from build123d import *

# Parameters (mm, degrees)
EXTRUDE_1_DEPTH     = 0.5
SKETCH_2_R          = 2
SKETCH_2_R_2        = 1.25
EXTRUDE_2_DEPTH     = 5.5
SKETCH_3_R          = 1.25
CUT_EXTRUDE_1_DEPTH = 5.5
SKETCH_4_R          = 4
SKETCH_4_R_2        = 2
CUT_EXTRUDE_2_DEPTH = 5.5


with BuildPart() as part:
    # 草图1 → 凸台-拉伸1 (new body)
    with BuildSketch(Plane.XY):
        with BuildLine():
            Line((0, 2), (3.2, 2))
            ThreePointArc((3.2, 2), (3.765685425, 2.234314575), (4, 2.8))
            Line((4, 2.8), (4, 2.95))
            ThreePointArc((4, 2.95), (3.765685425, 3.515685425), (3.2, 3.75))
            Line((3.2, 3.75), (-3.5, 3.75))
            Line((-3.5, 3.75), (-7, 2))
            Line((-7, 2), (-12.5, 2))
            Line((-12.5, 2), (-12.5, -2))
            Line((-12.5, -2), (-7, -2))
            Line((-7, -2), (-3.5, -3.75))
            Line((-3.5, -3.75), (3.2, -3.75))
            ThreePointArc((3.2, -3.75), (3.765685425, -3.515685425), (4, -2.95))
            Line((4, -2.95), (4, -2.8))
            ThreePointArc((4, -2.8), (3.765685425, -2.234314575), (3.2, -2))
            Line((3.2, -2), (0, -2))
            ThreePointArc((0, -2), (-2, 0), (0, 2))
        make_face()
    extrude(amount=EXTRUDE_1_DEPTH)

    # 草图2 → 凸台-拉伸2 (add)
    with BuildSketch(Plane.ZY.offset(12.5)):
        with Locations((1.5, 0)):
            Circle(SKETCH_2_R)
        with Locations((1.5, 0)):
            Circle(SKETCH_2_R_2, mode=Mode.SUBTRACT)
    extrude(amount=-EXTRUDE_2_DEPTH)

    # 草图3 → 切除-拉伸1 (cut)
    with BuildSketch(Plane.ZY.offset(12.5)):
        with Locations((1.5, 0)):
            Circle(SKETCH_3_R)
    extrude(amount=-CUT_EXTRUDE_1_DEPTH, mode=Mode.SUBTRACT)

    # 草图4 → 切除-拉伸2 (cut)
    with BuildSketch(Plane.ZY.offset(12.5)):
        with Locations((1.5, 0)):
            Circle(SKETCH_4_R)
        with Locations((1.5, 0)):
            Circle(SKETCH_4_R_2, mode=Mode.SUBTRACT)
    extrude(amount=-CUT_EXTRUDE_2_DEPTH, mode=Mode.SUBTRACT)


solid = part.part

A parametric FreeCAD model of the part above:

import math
import FreeCAD as App
import Part
import Sketcher
Q = App.Units.Quantity

doc = App.newDocument("Part")
body = doc.addObject("PartDesign::Body", "Body")

# Sketch on XY plane
sketch1 = body.newObject("Sketcher::SketchObject", "Sketch")
sketch1.AttachmentSupport = (doc.getObject("XY_Plane"), [""])
sketch1.MapMode = "FlatFace"
sketch1.addGeometry(Part.LineSegment(App.Vector(0, 2, 0), App.Vector(3.2, 2, 0)), False)
sketch1.addGeometry(Part.ArcOfCircle(Part.Circle(App.Vector(3.2, 2.8, 0), App.Vector(0, 0, 1), 0.8), math.radians(-90), math.radians(0)), False)
sketch1.addGeometry(Part.LineSegment(App.Vector(4, 2.8, 0), App.Vector(4, 2.95, 0)), False)
sketch1.addGeometry(Part.ArcOfCircle(Part.Circle(App.Vector(3.2, 2.95, 0), App.Vector(0, 0, 1), 0.8), math.radians(0), math.radians(90)), False)
sketch1.addGeometry(Part.LineSegment(App.Vector(3.2, 3.75, 0), App.Vector(-3.5, 3.75, 0)), False)
sketch1.addGeometry(Part.LineSegment(App.Vector(-3.5, 3.75, 0), App.Vector(-7, 2, 0)), False)
sketch1.addGeometry(Part.LineSegment(App.Vector(-7, 2, 0), App.Vector(-12.5, 2, 0)), False)
sketch1.addGeometry(Part.LineSegment(App.Vector(-12.5, 2, 0), App.Vector(-12.5, -2, 0)), False)
sketch1.addGeometry(Part.LineSegment(App.Vector(-12.5, -2, 0), App.Vector(-7, -2, 0)), False)
sketch1.addGeometry(Part.LineSegment(App.Vector(-7, -2, 0), App.Vector(-3.5, -3.75, 0)), False)
sketch1.addGeometry(Part.LineSegment(App.Vector(-3.5, -3.75, 0), App.Vector(3.2, -3.75, 0)), False)
sketch1.addGeometry(Part.ArcOfCircle(Part.Circle(App.Vector(3.2, -2.95, 0), App.Vector(0, 0, 1), 0.8), math.radians(-90), math.radians(0)), False)
sketch1.addGeometry(Part.LineSegment(App.Vector(4, -2.95, 0), App.Vector(4, -2.8, 0)), False)
sketch1.addGeometry(Part.ArcOfCircle(Part.Circle(App.Vector(3.2, -2.8, 0), App.Vector(0, 0, 1), 0.8), math.radians(0), math.radians(90)), False)
sketch1.addGeometry(Part.LineSegment(App.Vector(3.2, -2, 0), App.Vector(0, -2, 0)), False)
sketch1.addGeometry(Part.ArcOfCircle(Part.Circle(App.Vector(0, 0, 0), App.Vector(0, 0, 1), 2), math.radians(90), math.radians(270)), False)
sketch1.addConstraint(Sketcher.Constraint("Tangent", 0, 2, 1, 1))
sketch1.addConstraint(Sketcher.Constraint("Tangent", 1, 2, 2, 1))
sketch1.addConstraint(Sketcher.Constraint("Tangent", 2, 2, 3, 1))
sketch1.addConstraint(Sketcher.Constraint("Tangent", 3, 2, 4, 1))
sketch1.addConstraint(Sketcher.Constraint("Coincident", 4, 2, 5, 1))
sketch1.addConstraint(Sketcher.Constraint("Coincident", 5, 2, 6, 1))
sketch1.addConstraint(Sketcher.Constraint("Coincident", 6, 2, 7, 1))
sketch1.addConstraint(Sketcher.Constraint("Coincident", 7, 2, 8, 1))
sketch1.addConstraint(Sketcher.Constraint("Coincident", 8, 2, 9, 1))
sketch1.addConstraint(Sketcher.Constraint("Coincident", 9, 2, 10, 1))
sketch1.addConstraint(Sketcher.Constraint("Tangent", 10, 2, 11, 1))
sketch1.addConstraint(Sketcher.Constraint("Tangent", 11, 2, 12, 1))
sketch1.addConstraint(Sketcher.Constraint("Tangent", 12, 2, 13, 1))
sketch1.addConstraint(Sketcher.Constraint("Tangent", 13, 2, 14, 1))
sketch1.addConstraint(Sketcher.Constraint("Tangent", 14, 2, 15, 2))
sketch1.addConstraint(Sketcher.Constraint("Tangent", 15, 1, 0, 1))
sketch1.addConstraint(Sketcher.Constraint("Horizontal", 0))
sketch1.addConstraint(Sketcher.Constraint("Vertical", 2))
sketch1.addConstraint(Sketcher.Constraint("Horizontal", 4))
sketch1.addConstraint(Sketcher.Constraint("Horizontal", 6))
sketch1.addConstraint(Sketcher.Constraint("Vertical", 7))
sketch1.addConstraint(Sketcher.Constraint("Horizontal", 8))
sketch1.addConstraint(Sketcher.Constraint("Horizontal", 10))
sketch1.addConstraint(Sketcher.Constraint("Vertical", 12))
sketch1.addConstraint(Sketcher.Constraint("Horizontal", 14))
sketch1.addConstraint(Sketcher.Constraint("Coincident", 15, 3, -1, 1))
sketch1.addConstraint(Sketcher.Constraint("Equal", 1, 3))
sketch1.addConstraint(Sketcher.Constraint("Equal", 3, 11))
sketch1.addConstraint(Sketcher.Constraint("Equal", 11, 13))
sketch1.addConstraint(Sketcher.Constraint("Symmetric", 3, 3, 11, 3, -1))
sketch1.addConstraint(Sketcher.Constraint("Symmetric", 5, 2, 8, 2, -1))
sketch1.addConstraint(Sketcher.Constraint("Horizontal", 0, 2, 5, 2))
sketch1.addConstraint(Sketcher.Constraint("Vertical", 4, 2, 9, 2))
sketch1.addConstraint(Sketcher.Constraint("Radius", 15, Q("2 mm")))
sketch1.addConstraint(Sketcher.Constraint("Radius", 1, Q("0.8 mm")))
sketch1.addConstraint(Sketcher.Constraint("DistanceX", 0, 1, 0, 2, Q("3.2 mm")))
sketch1.addConstraint(Sketcher.Constraint("DistanceX", 4, 2, 4, 1, Q("6.7 mm")))
sketch1.addConstraint(Sketcher.Constraint("DistanceX", 6, 2, 6, 1, Q("5.5 mm")))
sketch1.addConstraint(Sketcher.Constraint("DistanceX", 5, 2, -1, 1, Q("7 mm")))
sketch1.addConstraint(Sketcher.Constraint("DistanceY", 2, 1, 2, 2, Q("0.15 mm")))
pad1 = body.newObject("PartDesign::Pad", "Pad")
pad1.Profile = sketch1
pad1.Length = 0.5

# Sketch on YZ plane
sketch2 = body.newObject("Sketcher::SketchObject", "Sketch001")
sketch2.AttachmentSupport = (doc.getObject("YZ_Plane"), [""])
sketch2.MapMode = "FlatFace"
sketch2.AttachmentOffset = App.Placement(App.Vector(0, 0, -12.5), App.Rotation())
sketch2.addGeometry(Part.Circle(App.Vector(0, 1.5, 0), App.Vector(0, 0, 1), 2), False)
sketch2.addGeometry(Part.Circle(App.Vector(0, 1.5, 0), App.Vector(0, 0, 1), 1.2), False)
sketch2.addConstraint(Sketcher.Constraint("Coincident", 1, 3, 0, 3))
sketch2.addConstraint(Sketcher.Constraint("PointOnObject", 0, 3, -2))
sketch2.addConstraint(Sketcher.Constraint("Diameter", 0, Q("4 mm")))
sketch2.addConstraint(Sketcher.Constraint("Diameter", 1, Q("2.5 mm")))
sketch2.addConstraint(Sketcher.Constraint("DistanceY", -1, 1, 0, 3, Q("1.5 mm")))
pad2 = body.newObject("PartDesign::Pad", "Pad001")
pad2.Profile = sketch2
pad2.Length = 5.5

# Sketch on YZ plane
sketch3 = body.newObject("Sketcher::SketchObject", "Sketch002")
sketch3.AttachmentSupport = (doc.getObject("YZ_Plane"), [""])
sketch3.MapMode = "FlatFace"
sketch3.AttachmentOffset = App.Placement(App.Vector(0, 0, -12.5), App.Rotation())
sketch3.addGeometry(Part.Circle(App.Vector(0, 1.5, 0), App.Vector(0, 0, 1), 1.2), False)
sketch3.addConstraint(Sketcher.Constraint("PointOnObject", 0, 3, -2))
sketch3.addConstraint(Sketcher.Constraint("Diameter", 0, Q("2.5 mm")))
sketch3.addConstraint(Sketcher.Constraint("DistanceY", -1, 1, 0, 3, Q("1.5 mm")))
pocket1 = body.newObject("PartDesign::Pocket", "Pocket")
pocket1.Profile = sketch3
pocket1.Length = 5.5
pocket1.Reversed = True

# Sketch on YZ plane
sketch4 = body.newObject("Sketcher::SketchObject", "Sketch003")
sketch4.AttachmentSupport = (doc.getObject("YZ_Plane"), [""])
sketch4.MapMode = "FlatFace"
sketch4.AttachmentOffset = App.Placement(App.Vector(0, 0, -12.5), App.Rotation())
sketch4.addGeometry(Part.Circle(App.Vector(0, 1.5, 0), App.Vector(0, 0, 1), 4), False)
sketch4.addGeometry(Part.Circle(App.Vector(0, 1.5, 0), App.Vector(0, 0, 1), 2), False)
sketch4.addConstraint(Sketcher.Constraint("Coincident", 1, 3, 0, 3))
sketch4.addConstraint(Sketcher.Constraint("PointOnObject", 0, 3, -2))
sketch4.addConstraint(Sketcher.Constraint("Diameter", 0, Q("8 mm")))
sketch4.addConstraint(Sketcher.Constraint("Diameter", 1, Q("4 mm")))
sketch4.addConstraint(Sketcher.Constraint("DistanceY", -1, 1, 0, 3, Q("1.5 mm")))
pocket2 = body.newObject("PartDesign::Pocket", "Pocket001")
pocket2.Profile = sketch4
pocket2.Length = 5.5
pocket2.Reversed = True

doc.recompute()
